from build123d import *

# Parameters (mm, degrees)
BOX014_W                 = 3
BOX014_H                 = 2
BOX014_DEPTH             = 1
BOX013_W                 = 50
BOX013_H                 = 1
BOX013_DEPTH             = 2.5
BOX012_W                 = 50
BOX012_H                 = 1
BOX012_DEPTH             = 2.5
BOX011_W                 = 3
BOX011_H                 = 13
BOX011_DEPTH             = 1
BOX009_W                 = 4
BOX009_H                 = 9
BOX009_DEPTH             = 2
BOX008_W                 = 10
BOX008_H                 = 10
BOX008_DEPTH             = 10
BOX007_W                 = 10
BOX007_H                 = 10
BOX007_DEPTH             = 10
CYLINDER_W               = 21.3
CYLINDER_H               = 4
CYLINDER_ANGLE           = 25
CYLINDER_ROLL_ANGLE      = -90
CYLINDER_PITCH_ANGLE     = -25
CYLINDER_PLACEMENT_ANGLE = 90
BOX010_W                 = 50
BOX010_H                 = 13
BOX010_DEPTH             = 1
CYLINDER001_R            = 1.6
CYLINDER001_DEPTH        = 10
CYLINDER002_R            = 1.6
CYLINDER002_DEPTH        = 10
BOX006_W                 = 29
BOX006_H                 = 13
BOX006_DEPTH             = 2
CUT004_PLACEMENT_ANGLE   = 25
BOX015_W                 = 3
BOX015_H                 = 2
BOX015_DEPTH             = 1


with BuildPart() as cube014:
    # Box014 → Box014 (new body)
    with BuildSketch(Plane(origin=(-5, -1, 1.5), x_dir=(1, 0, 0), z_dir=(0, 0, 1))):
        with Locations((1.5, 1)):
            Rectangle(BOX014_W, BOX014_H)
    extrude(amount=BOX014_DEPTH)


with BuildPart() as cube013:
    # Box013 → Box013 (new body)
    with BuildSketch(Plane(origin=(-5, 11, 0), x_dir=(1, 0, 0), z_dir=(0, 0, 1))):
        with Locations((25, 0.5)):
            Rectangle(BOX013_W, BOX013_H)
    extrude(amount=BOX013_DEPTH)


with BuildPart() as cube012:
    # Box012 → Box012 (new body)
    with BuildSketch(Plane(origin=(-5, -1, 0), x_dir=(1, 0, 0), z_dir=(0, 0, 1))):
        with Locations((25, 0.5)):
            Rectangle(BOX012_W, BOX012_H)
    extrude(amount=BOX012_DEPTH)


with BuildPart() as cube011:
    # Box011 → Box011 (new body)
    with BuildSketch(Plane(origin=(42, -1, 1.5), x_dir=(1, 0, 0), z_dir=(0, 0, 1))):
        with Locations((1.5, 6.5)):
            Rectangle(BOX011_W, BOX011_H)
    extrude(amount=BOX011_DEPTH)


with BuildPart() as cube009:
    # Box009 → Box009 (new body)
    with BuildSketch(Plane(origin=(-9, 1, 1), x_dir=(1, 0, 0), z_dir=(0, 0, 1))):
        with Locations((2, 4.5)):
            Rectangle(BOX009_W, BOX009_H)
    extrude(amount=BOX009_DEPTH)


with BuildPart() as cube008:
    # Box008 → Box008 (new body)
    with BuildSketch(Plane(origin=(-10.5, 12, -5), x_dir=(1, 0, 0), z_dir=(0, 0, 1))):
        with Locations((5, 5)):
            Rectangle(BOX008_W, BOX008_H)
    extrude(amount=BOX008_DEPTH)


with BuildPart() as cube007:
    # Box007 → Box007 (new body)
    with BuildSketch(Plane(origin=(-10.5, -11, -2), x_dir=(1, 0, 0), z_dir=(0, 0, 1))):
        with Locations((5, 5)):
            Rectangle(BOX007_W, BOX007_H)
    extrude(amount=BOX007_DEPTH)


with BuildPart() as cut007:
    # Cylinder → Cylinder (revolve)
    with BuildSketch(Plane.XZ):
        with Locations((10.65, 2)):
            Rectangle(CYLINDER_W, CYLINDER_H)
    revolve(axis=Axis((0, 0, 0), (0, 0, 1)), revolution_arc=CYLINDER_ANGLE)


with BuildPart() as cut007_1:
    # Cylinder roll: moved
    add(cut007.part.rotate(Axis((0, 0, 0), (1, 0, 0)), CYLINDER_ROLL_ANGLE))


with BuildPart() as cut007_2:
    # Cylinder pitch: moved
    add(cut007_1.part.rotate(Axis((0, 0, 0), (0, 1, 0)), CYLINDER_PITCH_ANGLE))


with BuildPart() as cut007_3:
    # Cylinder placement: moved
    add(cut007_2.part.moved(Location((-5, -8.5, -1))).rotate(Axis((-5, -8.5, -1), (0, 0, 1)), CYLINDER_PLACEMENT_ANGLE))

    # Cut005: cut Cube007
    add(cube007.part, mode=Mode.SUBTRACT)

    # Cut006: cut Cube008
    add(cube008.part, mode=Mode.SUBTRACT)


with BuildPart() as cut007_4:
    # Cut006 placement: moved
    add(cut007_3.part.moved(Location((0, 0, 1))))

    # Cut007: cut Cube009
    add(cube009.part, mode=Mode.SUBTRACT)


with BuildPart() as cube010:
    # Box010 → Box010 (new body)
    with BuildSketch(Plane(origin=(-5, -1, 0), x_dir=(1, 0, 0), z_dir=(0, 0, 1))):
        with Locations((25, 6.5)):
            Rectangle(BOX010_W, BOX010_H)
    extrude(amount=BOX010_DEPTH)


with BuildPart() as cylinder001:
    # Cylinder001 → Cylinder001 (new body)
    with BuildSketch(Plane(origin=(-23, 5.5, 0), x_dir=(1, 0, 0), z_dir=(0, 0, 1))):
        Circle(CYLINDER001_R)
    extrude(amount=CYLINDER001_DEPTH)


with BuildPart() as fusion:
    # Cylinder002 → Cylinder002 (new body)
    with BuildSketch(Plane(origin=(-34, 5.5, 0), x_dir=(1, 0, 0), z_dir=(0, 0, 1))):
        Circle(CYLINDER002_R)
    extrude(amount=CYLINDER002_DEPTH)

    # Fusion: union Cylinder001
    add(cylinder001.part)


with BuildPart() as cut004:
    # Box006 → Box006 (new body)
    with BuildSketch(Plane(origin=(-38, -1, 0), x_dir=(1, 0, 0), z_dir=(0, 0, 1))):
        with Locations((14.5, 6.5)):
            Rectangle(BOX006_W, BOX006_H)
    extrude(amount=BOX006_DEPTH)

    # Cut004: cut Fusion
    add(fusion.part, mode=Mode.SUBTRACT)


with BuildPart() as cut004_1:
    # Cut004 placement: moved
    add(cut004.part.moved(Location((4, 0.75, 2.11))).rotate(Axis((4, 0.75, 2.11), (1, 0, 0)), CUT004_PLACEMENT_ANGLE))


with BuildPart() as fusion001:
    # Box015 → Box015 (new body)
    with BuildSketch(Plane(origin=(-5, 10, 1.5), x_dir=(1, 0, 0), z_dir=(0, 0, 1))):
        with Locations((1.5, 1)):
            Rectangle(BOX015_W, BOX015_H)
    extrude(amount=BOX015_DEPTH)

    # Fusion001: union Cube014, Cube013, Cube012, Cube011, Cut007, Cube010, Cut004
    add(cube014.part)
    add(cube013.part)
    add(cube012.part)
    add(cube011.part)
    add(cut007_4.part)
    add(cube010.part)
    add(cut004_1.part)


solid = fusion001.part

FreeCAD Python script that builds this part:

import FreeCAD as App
import Part
import Sketcher

V = App.Vector

doc = App.newDocument("Part")
body = doc.addObject("PartDesign::Body", "Body")

sketch1 = body.newObject("Sketcher::SketchObject", "Sketch")
sketch1.AttachmentSupport = (doc.getObject("XY_Plane"), [""])
sketch1.MapMode = "FlatFace"
sketch1.AttachmentOffset = App.Placement(V(0, 0, 1.5), App.Rotation())
sketch1.addGeometry(Part.LineSegment(V(-5, 1, 0), V(-5, -1, 0)), False)
sketch1.addGeometry(Part.LineSegment(V(-5, -1, 0), V(-2, -1, 0)), False)
sketch1.addGeometry(Part.LineSegment(V(-2, -1, 0), V(-2, 1, 0)), False)
sketch1.addGeometry(Part.LineSegment(V(-2, 1, 0), V(-5, 1, 0)), False)
sketch1.addConstraint(Sketcher.Constraint("Coincident", 0, 2, 1, 1))
sketch1.addConstraint(Sketcher.Constraint("Coincident", 1, 2, 2, 1))
sketch1.addConstraint(Sketcher.Constraint("Coincident", 2, 2, 3, 1))
sketch1.addConstraint(Sketcher.Constraint("Coincident", 3, 2, 0, 1))
sketch1.addConstraint(Sketcher.Constraint("Vertical", 0))
sketch1.addConstraint(Sketcher.Constraint("Horizontal", 1))
sketch1.addConstraint(Sketcher.Constraint("Vertical", 2))
sketch1.addConstraint(Sketcher.Constraint("Horizontal", 3))
sketch1.addConstraint(Sketcher.Constraint("DistanceX", 1, 1, 1, 2, 3.0))
sketch1.addConstraint(Sketcher.Constraint("DistanceY", 0, 2, 0, 1, 2.0))
sketch1.addConstraint(Sketcher.Constraint("DistanceX", 0, 2, -1, 1, 5.0))
sketch1.addConstraint(Sketcher.Constraint("DistanceY", 0, 2, -1, 1, 1.0))
pad1 = body.newObject("PartDesign::Pad", "Pad")
pad1.Profile = sketch1
pad1.Length = 1
body2 = doc.addObject("PartDesign::Body", "Body001")

sketch2 = body2.newObject("Sketcher::SketchObject", "Sketch001")
sketch2.AttachmentSupport = (doc.getObject("XY_Plane001"), [""])
sketch2.MapMode = "FlatFace"
sketch2.addGeometry(Part.LineSegment(V(-5, 12, 0), V(-5, 11, 0)), False)
sketch2.addGeometry(Part.LineSegment(V(-5, 11, 0), V(45, 11, 0)), False)
sketch2.addGeometry(Part.LineSegment(V(45, 11, 0), V(45, 12, 0)), False)
sketch2.addGeometry(Part.LineSegment(V(45, 12, 0), V(-5, 12, 0)), False)
sketch2.addConstraint(Sketcher.Constraint("Coincident", 0, 2, 1, 1))
sketch2.addConstraint(Sketcher.Constraint("Coincident", 1, 2, 2, 1))
sketch2.addConstraint(Sketcher.Constraint("Coincident", 2, 2, 3, 1))
sketch2.addConstraint(Sketcher.Constraint("Coincident", 3, 2, 0, 1))
sketch2.addConstraint(Sketcher.Constraint("Vertical", 0))
sketch2.addConstraint(Sketcher.Constraint("Horizontal", 1))
sketch2.addConstraint(Sketcher.Constraint("Vertical", 2))
sketch2.addConstraint(Sketcher.Constraint("Horizontal", 3))
sketch2.addConstraint(Sketcher.Constraint("DistanceX", 1, 1, 1, 2, 50.0))
sketch2.addConstraint(Sketcher.Constraint("DistanceY", 0, 2, 0, 1, 1.0))
sketch2.addConstraint(Sketcher.Constraint("DistanceX", 0, 2, -1, 1, 5.0))
sketch2.addConstraint(Sketcher.Constraint("DistanceY", -1, 1, 0, 2, 11.0))
pad2 = body2.newObject("PartDesign::Pad", "Pad001")
pad2.Profile = sketch2
pad2.Length = 2.5
body3 = doc.addObject("PartDesign::Body", "Body002")

sketch3 = body3.newObject("Sketcher::SketchObject", "Sketch002")
sketch3.AttachmentSupport = (doc.getObject("XY_Plane002"), [""])
sketch3.MapMode = "FlatFace"
sketch3.addGeometry(Part.LineSegment(V(-5, 0, 0), V(-5, -1, 0)), False)
sketch3.addGeometry(Part.LineSegment(V(-5, -1, 0), V(45, -1, 0)), False)
sketch3.addGeometry(Part.LineSegment(V(45, -1, 0), V(45, 0, 0)), False)
sketch3.addGeometry(Part.LineSegment(V(45, 0, 0), V(-5, 0, 0)), False)
sketch3.addConstraint(Sketcher.Constraint("Coincident", 0, 2, 1, 1))
sketch3.addConstraint(Sketcher.Constraint("Coincident", 1, 2, 2, 1))
sketch3.addConstraint(Sketcher.Constraint("Coincident", 2, 2, 3, 1))
sketch3.addConstraint(Sketcher.Constraint("Coincident", 3, 2, 0, 1))
sketch3.addConstraint(Sketcher.Constraint("Vertical", 0))
sketch3.addConstraint(Sketcher.Constraint("Horizontal", 1))
sketch3.addConstraint(Sketcher.Constraint("Vertical", 2))
sketch3.addConstraint(Sketcher.Constraint("Horizontal", 3))
sketch3.addConstraint(Sketcher.Constraint("PointOnObject", 2, 2, -1))
sketch3.addConstraint(Sketcher.Constraint("DistanceX", 1, 1, 1, 2, 50.0))
sketch3.addConstraint(Sketcher.Constraint("DistanceY", 0, 2, 0, 1, 1.0))
sketch3.addConstraint(Sketcher.Constraint("DistanceX", 0, 2, -1, 1, 5.0))
pad3 = body3.newObject("PartDesign::Pad", "Pad002")
pad3.Profile = sketch3
pad3.Length = 2.5
body4 = doc.addObject("PartDesign::Body", "Body003")

sketch4 = body4.newObject("Sketcher::SketchObject", "Sketch003")
sketch4.AttachmentSupport = (doc.getObject("XY_Plane003"), [""])
sketch4.MapMode = "FlatFace"
sketch4.AttachmentOffset = App.Placement(V(0, 0, 1.5), App.Rotation())
sketch4.addGeometry(Part.LineSegment(V(42, 12, 0), V(42, -1, 0)), False)
sketch4.addGeometry(Part.LineSegment(V(42, -1, 0), V(45, -1, 0)), False)
sketch4.addGeometry(Part.LineSegment(V(45, -1, 0), V(45, 12, 0)), False)
sketch4.addGeometry(Part.LineSegment(V(45, 12, 0), V(42, 12, 0)), False)
sketch4.addConstraint(Sketcher.Constraint("Coincident", 0, 2, 1, 1))
sketch4.addConstraint(Sketcher.Constraint("Coincident", 1, 2, 2, 1))
sketch4.addConstraint(Sketcher.Constraint("Coincident", 2, 2, 3, 1))
sketch4.addConstraint(Sketcher.Constraint("Coincident", 3, 2, 0, 1))
sketch4.addConstraint(Sketcher.Constraint("Vertical", 0))
sketch4.addConstraint(Sketcher.Constraint("Horizontal", 1))
sketch4.addConstraint(Sketcher.Constraint("Vertical", 2))
sketch4.addConstraint(Sketcher.Constraint("Horizontal", 3))
sketch4.addConstraint(Sketcher.Constraint("DistanceX", 1, 1, 1, 2, 3.0))
sketch4.addConstraint(Sketcher.Constraint("DistanceY", 0, 2, 0, 1, 13.0))
sketch4.addConstraint(Sketcher.Constraint("DistanceX", -1, 1, 0, 2, 42.0))
sketch4.addConstraint(Sketcher.Constraint("DistanceY", 0, 2, -1, 1, 1.0))
pad4 = body4.newObject("PartDesign::Pad", "Pad003")
pad4.Profile = sketch4
pad4.Length = 1
body5 = doc.addObject("PartDesign::Body", "Body004")

sketch5 = body5.newObject("Sketcher::SketchObject", "Sketch004")
sketch5.AttachmentSupport = (doc.getObject("XY_Plane004"), [""])
sketch5.MapMode = "FlatFace"
sketch5.AttachmentOffset = App.Placement(V(0, 0, 1), App.Rotation())
sketch5.addGeometry(Part.LineSegment(V(-9, 10, 0), V(-9, 1, 0)), False)
sketch5.addGeometry(Part.LineSegment(V(-9, 1, 0), V(-5, 1, 0)), False)
sketch5.addGeometry(Part.LineSegment(V(-5, 1, 0), V(-5, 10, 0)), False)
sketch5.addGeometry(Part.LineSegment(V(-5, 10, 0), V(-9, 10, 0)), False)
sketch5.addConstraint(Sketcher.Constraint("Coincident", 0, 2, 1, 1))
sketch5.addConstraint(Sketcher.Constraint("Coincident", 1, 2, 2, 1))
sketch5.addConstraint(Sketcher.Constraint("Coincident", 2, 2, 3, 1))
sketch5.addConstraint(Sketcher.Constraint("Coincident", 3, 2, 0, 1))
sketch5.addConstraint(Sketcher.Constraint("Vertical", 0))
sketch5.addConstraint(Sketcher.Constraint("Horizontal", 1))
sketch5.addConstraint(Sketcher.Constraint("Vertical", 2))
sketch5.addConstraint(Sketcher.Constraint("Horizontal", 3))
sketch5.addConstraint(Sketcher.Constraint("DistanceX", 1, 1, 1, 2, 4.0))
sketch5.addConstraint(Sketcher.Constraint("DistanceY", 0, 2, 0, 1, 9.0))
sketch5.addConstraint(Sketcher.Constraint("DistanceX", 0, 2, -1, 1, 9.0))
sketch5.addConstraint(Sketcher.Constraint("DistanceY", -1, 1, 0, 2, 1.0))
pad5 = body5.newObject("PartDesign::Pad", "Pad004")
pad5.Profile = sketch5
pad5.Length = 2
body6 = doc.addObject("PartDesign::Body", "Body005")

sketch6 = body6.newObject("Sketcher::SketchObject", "Sketch005")
sketch6.AttachmentSupport = (doc.getObject("XY_Plane005"), [""])
sketch6.MapMode = "FlatFace"
sketch6.AttachmentOffset = App.Placement(V(0, 0, -5), App.Rotation())
sketch6.addGeometry(Part.LineSegment(V(-10.5, 22, 0), V(-10.5, 12, 0)), False)
sketch6.addGeometry(Part.LineSegment(V(-10.5, 12, 0), V(-0.5, 12, 0)), False)
sketch6.addGeometry(Part.LineSegment(V(-0.5, 12, 0), V(-0.5, 22, 0)), False)
sketch6.addGeometry(Part.LineSegment(V(-0.5, 22, 0), V(-10.5, 22, 0)), False)
sketch6.addConstraint(Sketcher.Constraint("Coincident", 0, 2, 1, 1))
sketch6.addConstraint(Sketcher.Constraint("Coincident", 1, 2, 2, 1))
sketch6.addConstraint(Sketcher.Constraint("Coincident", 2, 2, 3, 1))
sketch6.addConstraint(Sketcher.Constraint("Coincident", 3, 2, 0, 1))
sketch6.addConstraint(Sketcher.Constraint("Vertical", 0))
sketch6.addConstraint(Sketcher.Constraint("Horizontal", 1))
sketch6.addConstraint(Sketcher.Constraint("Vertical", 2))
sketch6.addConstraint(Sketcher.Constraint("Horizontal", 3))
sketch6.addConstraint(Sketcher.Constraint("Equal", 3, 0))
sketch6.addConstraint(Sketcher.Constraint("DistanceX", 1, 1, 1, 2, 10.0))
sketch6.addConstraint(Sketcher.Constraint("DistanceY", -1, 1, 0, 2, 12.0))
sketch6.addConstraint(Sketcher.Constraint("DistanceX", 0, 2, -1, 1, 10.5))
pad6 = body6.newObject("PartDesign::Pad", "Pad005")
pad6.Profile = sketch6
pad6.Length = 10
body7 = doc.addObject("PartDesign::Body", "Body006")

sketch7 = body7.newObject("Sketcher::SketchObject", "Sketch006")
sketch7.AttachmentSupport = (doc.getObject("XY_Plane006"), [""])
sketch7.MapMode = "FlatFace"
sketch7.AttachmentOffset = App.Placement(V(0, 0, -2), App.Rotation())
sketch7.addGeometry(Part.LineSegment(V(-10.5, -1, 0), V(-10.5, -11, 0)), False)
sketch7.addGeometry(Part.LineSegment(V(-10.5, -11, 0), V(-0.5, -11, 0)), False)
sketch7.addGeometry(Part.LineSegment(V(-0.5, -11, 0), V(-0.5, -1, 0)), False)
sketch7.addGeometry(Part.LineSegment(V(-0.5, -1, 0), V(-10.5, -1, 0)), False)
sketch7.addConstraint(Sketcher.Constraint("Coincident", 0, 2, 1, 1))
sketch7.addConstraint(Sketcher.Constraint("Coincident", 1, 2, 2, 1))
sketch7.addConstraint(Sketcher.Constraint("Coincident", 2, 2, 3, 1))
sketch7.addConstraint(Sketcher.Constraint("Coincident", 3, 2, 0, 1))
sketch7.addConstraint(Sketcher.Constraint("Vertical", 0))
sketch7.addConstraint(Sketcher.Constraint("Horizontal", 1))
sketch7.addConstraint(Sketcher.Constraint("Vertical", 2))
sketch7.addConstraint(Sketcher.Constraint("Horizontal", 3))
sketch7.addConstraint(Sketcher.Constraint("Equal", 3, 0))
sketch7.addConstraint(Sketcher.Constraint("DistanceX", 1, 1, 1, 2, 10.0))
sketch7.addConstraint(Sketcher.Constraint("DistanceY", 0, 2, -1, 1, 11.0))
sketch7.addConstraint(Sketcher.Constraint("DistanceX", 0, 2, -1, 1, 10.5))
pad7 = body7.newObject("PartDesign::Pad", "Pad006")
pad7.Profile = sketch7
pad7.Length = 10
body8 = doc.addObject("PartDesign::Body", "Body007")

sketch8 = body8.newObject("Sketcher::SketchObject", "Sketch007")
sketch8.AttachmentSupport = (doc.getObject("XZ_Plane007"), [""])
sketch8.MapMode = "FlatFace"
sketch8.addGeometry(Part.LineSegment(V(0, 4, 0), V(0, 0, 0)), False)
sketch8.addGeometry(Part.LineSegment(V(0, 0, 0), V(21.3, 0, 0)), False)
sketch8.addGeometry(Part.LineSegment(V(21.3, 0, 0), V(21.3, 4, 0)), False)
sketch8.addGeometry(Part.LineSegment(V(21.3, 4, 0), V(0, 4, 0)), False)
sketch8.addConstraint(Sketcher.Constraint("Coincident", 0, 2, 1, 1))
sketch8.addConstraint(Sketcher.Constraint("Coincident", 1, 2, 2, 1))
sketch8.addConstraint(Sketcher.Constraint("Coincident", 2, 2, 3, 1))
sketch8.addConstraint(Sketcher.Constraint("Coincident", 3, 2, 0, 1))
sketch8.addConstraint(Sketcher.Constraint("Vertical", 0))
sketch8.addConstraint(Sketcher.Constraint("Horizontal", 1))
sketch8.addConstraint(Sketcher.Constraint("Vertical", 2))
sketch8.addConstraint(Sketcher.Constraint("Horizontal", 3))
sketch8.addConstraint(Sketcher.Constraint("Coincident", 0, 2, -1, 1))
sketch8.addConstraint(Sketcher.Constraint("DistanceY", 0, 2, 0, 1, 4.0))
sketch8.addConstraint(Sketcher.Constraint("DistanceX", 1, 1, 1, 2, 21.3))
revolution = body8.newObject("PartDesign::Revolution", "Revolution")
revolution.Profile = sketch8
revolution.ReferenceAxis = (sketch8, ["V_Axis"])
revolution.Angle = 25
body9 = doc.addObject("PartDesign::Body", "Body008")
doc.recompute()

body8.Placement = App.Placement(V(0, 0, 0), App.Rotation(V(1, 0, 0), 270))
boolean = body9.newObject("PartDesign::Boolean", "Boolean")
boolean.Type = "Fuse"
boolean.addObjects([body8])
body10 = doc.addObject("PartDesign::Body", "Body009")
doc.recompute()

body9.Placement = App.Placement(V(0, 0, 0), App.Rotation(V(0, 1, 0), 335))
boolean2 = body10.newObject("PartDesign::Boolean", "Boolean001")
boolean2.Type = "Fuse"
boolean2.addObjects([body9])
body11 = doc.addObject("PartDesign::Body", "Body010")
doc.recompute()

body10.Placement = App.Placement(V(-5, -8.5, -1), App.Rotation(V(0, 0, 1), 90))
boolean3 = body11.newObject("PartDesign::Boolean", "Boolean002")
boolean3.Type = "Fuse"
boolean3.addObjects([body10])
doc.recompute()

boolean4 = body11.newObject("PartDesign::Boolean", "Boolean003")
boolean4.Type = "Cut"
boolean4.addObjects([body7])
doc.recompute()

boolean5 = body11.newObject("PartDesign::Boolean", "Boolean004")
boolean5.Type = "Cut"
boolean5.addObjects([body6])
body12 = doc.addObject("PartDesign::Body", "Body011")
doc.recompute()

body11.Placement = App.Placement(V(0, 0, 1), App.Rotation(V(0, 0, 1), 0))
boolean6 = body12.newObject("PartDesign::Boolean", "Boolean005")
boolean6.Type = "Fuse"
boolean6.addObjects([body11])
doc.recompute()

boolean7 = body12.newObject("PartDesign::Boolean", "Boolean006")
boolean7.Type = "Cut"
boolean7.addObjects([body5])
body13 = doc.addObject("PartDesign::Body", "Body012")

sketch9 = body13.newObject("Sketcher::SketchObject", "Sketch008")
sketch9.AttachmentSupport = (doc.getObject("XY_Plane012"), [""])
sketch9.MapMode = "FlatFace"
sketch9.addGeometry(Part.LineSegment(V(-5, 12, 0), V(-5, -1, 0)), False)
sketch9.addGeometry(Part.LineSegment(V(-5, -1, 0), V(45, -1, 0)), False)
sketch9.addGeometry(Part.LineSegment(V(45, -1, 0), V(45, 12, 0)), False)
sketch9.addGeometry(Part.LineSegment(V(45, 12, 0), V(-5, 12, 0)), False)
sketch9.addConstraint(Sketcher.Constraint("Coincident", 0, 2, 1, 1))
sketch9.addConstraint(Sketcher.Constraint("Coincident", 1, 2, 2, 1))
sketch9.addConstraint(Sketcher.Constraint("Coincident", 2, 2, 3, 1))
sketch9.addConstraint(Sketcher.Constraint("Coincident", 3, 2, 0, 1))
sketch9.addConstraint(Sketcher.Constraint("Vertical", 0))
sketch9.addConstraint(Sketcher.Constraint("Horizontal", 1))
sketch9.addConstraint(Sketcher.Constraint("Vertical", 2))
sketch9.addConstraint(Sketcher.Constraint("Horizontal", 3))
sketch9.addConstraint(Sketcher.Constraint("DistanceX", 1, 1, 1, 2, 50.0))
sketch9.addConstraint(Sketcher.Constraint("DistanceY", 0, 2, 0, 1, 13.0))
sketch9.addConstraint(Sketcher.Constraint("DistanceX", 0, 2, -1, 1, 5.0))
sketch9.addConstraint(Sketcher.Constraint("DistanceY", 0, 2, -1, 1, 1.0))
pad8 = body13.newObject("PartDesign::Pad", "Pad007")
pad8.Profile = sketch9
pad8.Length = 1
body14 = doc.addObject("PartDesign::Body", "Body013")

sketch10 = body14.newObject("Sketcher::SketchObject", "Sketch009")
sketch10.AttachmentSupport = (doc.getObject("XY_Plane013"), [""])
sketch10.MapMode = "FlatFace"
sketch10.addGeometry(Part.Circle(V(-23, 5.5, 0), V(0, 0, 1), 1.6), False)
sketch10.addConstraint(Sketcher.Constraint("Diameter", 0, 3.2))
sketch10.addConstraint(Sketcher.Constraint("DistanceX", 0, 3, -1, 1, 23.0))
sketch10.addConstraint(Sketcher.Constraint("DistanceY", -1, 1, 0, 3, 5.5))
pad9 = body14.newObject("PartDesign::Pad", "Pad008")
pad9.Profile = sketch10
pad9.Length = 10
body15 = doc.addObject("PartDesign::Body", "Body014")
body15.AllowCompound = True

sketch11 = body15.newObject("Sketcher::SketchObject", "Sketch010")
sketch11.AttachmentSupport = (doc.getObject("XY_Plane014"), [""])
sketch11.MapMode = "FlatFace"
sketch11.addGeometry(Part.Circle(V(-34, 5.5, 0), V(0, 0, 1), 1.6), False)
sketch11.addConstraint(Sketcher.Constraint("Diameter", 0, 3.2))
sketch11.addConstraint(Sketcher.Constraint("DistanceX", 0, 3, -1, 1, 34.0))
sketch11.addConstraint(Sketcher.Constraint("DistanceY", -1, 1, 0, 3, 5.5))
pad10 = body15.newObject("PartDesign::Pad", "Pad009")
pad10.Profile = sketch11
pad10.Length = 10
doc.recompute()

boolean8 = body15.newObject("PartDesign::Boolean", "Boolean007")
boolean8.Type = "Fuse"
boolean8.addObjects([body14])
body16 = doc.addObject("PartDesign::Body", "Body015")

sketch12 = body16.newObject("Sketcher::SketchObject", "Sketch011")
sketch12.AttachmentSupport = (doc.getObject("XY_Plane015"), [""])
sketch12.MapMode = "FlatFace"
sketch12.addGeometry(Part.LineSegment(V(-38, 12, 0), V(-38, -1, 0)), False)
sketch12.addGeometry(Part.LineSegment(V(-38, -1, 0), V(-9, -1, 0)), False)
sketch12.addGeometry(Part.LineSegment(V(-9, -1, 0), V(-9, 12, 0)), False)
sketch12.addGeometry(Part.LineSegment(V(-9, 12, 0), V(-38, 12, 0)), False)
sketch12.addConstraint(Sketcher.Constraint("Coincident", 0, 2, 1, 1))
sketch12.addConstraint(Sketcher.Constraint("Coincident", 1, 2, 2, 1))
sketch12.addConstraint(Sketcher.Constraint("Coincident", 2, 2, 3, 1))
sketch12.addConstraint(Sketcher.Constraint("Coincident", 3, 2, 0, 1))
sketch12.addConstraint(Sketcher.Constraint("Vertical", 0))
sketch12.addConstraint(Sketcher.Constraint("Horizontal", 1))
sketch12.addConstraint(Sketcher.Constraint("Vertical", 2))
sketch12.addConstraint(Sketcher.Constraint("Horizontal", 3))
sketch12.addConstraint(Sketcher.Constraint("DistanceX", 1, 1, 1, 2, 29.0))
sketch12.addConstraint(Sketcher.Constraint("DistanceY", 0, 2, 0, 1, 13.0))
sketch12.addConstraint(Sketcher.Constraint("DistanceX", 0, 2, -1, 1, 38.0))
sketch12.addConstraint(Sketcher.Constraint("DistanceY", 0, 2, -1, 1, 1.0))
pad11 = body16.newObject("PartDesign::Pad", "Pad010")
pad11.Profile = sketch12
pad11.Length = 2
doc.recompute()

boolean9 = body16.newObject("PartDesign::Boolean", "Boolean008")
boolean9.Type = "Cut"
boolean9.addObjects([body15])
body17 = doc.addObject("PartDesign::Body", "Body016")
doc.recompute()

body16.Placement = App.Placement(V(4, 0.75, 2.11), App.Rotation(V(1, 0, 0), 25))
boolean10 = body17.newObject("PartDesign::Boolean", "Boolean009")
boolean10.Type = "Fuse"
boolean10.addObjects([body16])
body18 = doc.addObject("PartDesign::Body", "Body017")
body18.AllowCompound = True

sketch13 = body18.newObject("Sketcher::SketchObject", "Sketch012")
sketch13.AttachmentSupport = (doc.getObject("XY_Plane017"), [""])
sketch13.MapMode = "FlatFace"
sketch13.AttachmentOffset = App.Placement(V(0, 0, 1.5), App.Rotation())
sketch13.addGeometry(Part.LineSegment(V(-5, 12, 0), V(-5, 10, 0)), False)
sketch13.addGeometry(Part.LineSegment(V(-5, 10, 0), V(-2, 10, 0)), False)
sketch13.addGeometry(Part.LineSegment(V(-2, 10, 0), V(-2, 12, 0)), False)
sketch13.addGeometry(Part.LineSegment(V(-2, 12, 0), V(-5, 12, 0)), False)
sketch13.addConstraint(Sketcher.Constraint("Coincident", 0, 2, 1, 1))
sketch13.addConstraint(Sketcher.Constraint("Coincident", 1, 2, 2, 1))
sketch13.addConstraint(Sketcher.Constraint("Coincident", 2, 2, 3, 1))
sketch13.addConstraint(Sketcher.Constraint("Coincident", 3, 2, 0, 1))
sketch13.addConstraint(Sketcher.Constraint("Vertical", 0))
sketch13.addConstraint(Sketcher.Constraint("Horizontal", 1))
sketch13.addConstraint(Sketcher.Constraint("Vertical", 2))
sketch13.addConstraint(Sketcher.Constraint("Horizontal", 3))
sketch13.addConstraint(Sketcher.Constraint("DistanceX", 1, 1, 1, 2, 3.0))
sketch13.addConstraint(Sketcher.Constraint("DistanceY", 0, 2, 0, 1, 2.0))
sketch13.addConstraint(Sketcher.Constraint("DistanceX", 0, 2, -1, 1, 5.0))
sketch13.addConstraint(Sketcher.Constraint("DistanceY", -1, 1, 0, 2, 10.0))
pad12 = body18.newObject("PartDesign::Pad", "Pad011")
pad12.Profile = sketch13
pad12.Length = 1
doc.recompute()

boolean11 = body18.newObject("PartDesign::Boolean", "Boolean010")
boolean11.Type = "Fuse"
boolean11.addObjects([body])
doc.recompute()

boolean12 = body18.newObject("PartDesign::Boolean", "Boolean011")
boolean12.Type = "Fuse"
boolean12.addObjects([body2])
doc.recompute()

boolean13 = body18.newObject("PartDesign::Boolean", "Boolean012")
boolean13.Type = "Fuse"
boolean13.addObjects([body3])
doc.recompute()

boolean14 = body18.newObject("PartDesign::Boolean", "Boolean013")
boolean14.Type = "Fuse"
boolean14.addObjects([body4])
doc.recompute()

boolean15 = body18.newObject("PartDesign::Boolean", "Boolean014")
boolean15.Type = "Fuse"
boolean15.addObjects([body12])
doc.recompute()

boolean16 = body18.newObject("PartDesign::Boolean", "Boolean015")
boolean16.Type = "Fuse"
boolean16.addObjects([body13])
doc.recompute()

boolean17 = body18.newObject("PartDesign::Boolean", "Boolean016")
boolean17.Type = "Fuse"
boolean17.addObjects([body17])

doc.recompute()
